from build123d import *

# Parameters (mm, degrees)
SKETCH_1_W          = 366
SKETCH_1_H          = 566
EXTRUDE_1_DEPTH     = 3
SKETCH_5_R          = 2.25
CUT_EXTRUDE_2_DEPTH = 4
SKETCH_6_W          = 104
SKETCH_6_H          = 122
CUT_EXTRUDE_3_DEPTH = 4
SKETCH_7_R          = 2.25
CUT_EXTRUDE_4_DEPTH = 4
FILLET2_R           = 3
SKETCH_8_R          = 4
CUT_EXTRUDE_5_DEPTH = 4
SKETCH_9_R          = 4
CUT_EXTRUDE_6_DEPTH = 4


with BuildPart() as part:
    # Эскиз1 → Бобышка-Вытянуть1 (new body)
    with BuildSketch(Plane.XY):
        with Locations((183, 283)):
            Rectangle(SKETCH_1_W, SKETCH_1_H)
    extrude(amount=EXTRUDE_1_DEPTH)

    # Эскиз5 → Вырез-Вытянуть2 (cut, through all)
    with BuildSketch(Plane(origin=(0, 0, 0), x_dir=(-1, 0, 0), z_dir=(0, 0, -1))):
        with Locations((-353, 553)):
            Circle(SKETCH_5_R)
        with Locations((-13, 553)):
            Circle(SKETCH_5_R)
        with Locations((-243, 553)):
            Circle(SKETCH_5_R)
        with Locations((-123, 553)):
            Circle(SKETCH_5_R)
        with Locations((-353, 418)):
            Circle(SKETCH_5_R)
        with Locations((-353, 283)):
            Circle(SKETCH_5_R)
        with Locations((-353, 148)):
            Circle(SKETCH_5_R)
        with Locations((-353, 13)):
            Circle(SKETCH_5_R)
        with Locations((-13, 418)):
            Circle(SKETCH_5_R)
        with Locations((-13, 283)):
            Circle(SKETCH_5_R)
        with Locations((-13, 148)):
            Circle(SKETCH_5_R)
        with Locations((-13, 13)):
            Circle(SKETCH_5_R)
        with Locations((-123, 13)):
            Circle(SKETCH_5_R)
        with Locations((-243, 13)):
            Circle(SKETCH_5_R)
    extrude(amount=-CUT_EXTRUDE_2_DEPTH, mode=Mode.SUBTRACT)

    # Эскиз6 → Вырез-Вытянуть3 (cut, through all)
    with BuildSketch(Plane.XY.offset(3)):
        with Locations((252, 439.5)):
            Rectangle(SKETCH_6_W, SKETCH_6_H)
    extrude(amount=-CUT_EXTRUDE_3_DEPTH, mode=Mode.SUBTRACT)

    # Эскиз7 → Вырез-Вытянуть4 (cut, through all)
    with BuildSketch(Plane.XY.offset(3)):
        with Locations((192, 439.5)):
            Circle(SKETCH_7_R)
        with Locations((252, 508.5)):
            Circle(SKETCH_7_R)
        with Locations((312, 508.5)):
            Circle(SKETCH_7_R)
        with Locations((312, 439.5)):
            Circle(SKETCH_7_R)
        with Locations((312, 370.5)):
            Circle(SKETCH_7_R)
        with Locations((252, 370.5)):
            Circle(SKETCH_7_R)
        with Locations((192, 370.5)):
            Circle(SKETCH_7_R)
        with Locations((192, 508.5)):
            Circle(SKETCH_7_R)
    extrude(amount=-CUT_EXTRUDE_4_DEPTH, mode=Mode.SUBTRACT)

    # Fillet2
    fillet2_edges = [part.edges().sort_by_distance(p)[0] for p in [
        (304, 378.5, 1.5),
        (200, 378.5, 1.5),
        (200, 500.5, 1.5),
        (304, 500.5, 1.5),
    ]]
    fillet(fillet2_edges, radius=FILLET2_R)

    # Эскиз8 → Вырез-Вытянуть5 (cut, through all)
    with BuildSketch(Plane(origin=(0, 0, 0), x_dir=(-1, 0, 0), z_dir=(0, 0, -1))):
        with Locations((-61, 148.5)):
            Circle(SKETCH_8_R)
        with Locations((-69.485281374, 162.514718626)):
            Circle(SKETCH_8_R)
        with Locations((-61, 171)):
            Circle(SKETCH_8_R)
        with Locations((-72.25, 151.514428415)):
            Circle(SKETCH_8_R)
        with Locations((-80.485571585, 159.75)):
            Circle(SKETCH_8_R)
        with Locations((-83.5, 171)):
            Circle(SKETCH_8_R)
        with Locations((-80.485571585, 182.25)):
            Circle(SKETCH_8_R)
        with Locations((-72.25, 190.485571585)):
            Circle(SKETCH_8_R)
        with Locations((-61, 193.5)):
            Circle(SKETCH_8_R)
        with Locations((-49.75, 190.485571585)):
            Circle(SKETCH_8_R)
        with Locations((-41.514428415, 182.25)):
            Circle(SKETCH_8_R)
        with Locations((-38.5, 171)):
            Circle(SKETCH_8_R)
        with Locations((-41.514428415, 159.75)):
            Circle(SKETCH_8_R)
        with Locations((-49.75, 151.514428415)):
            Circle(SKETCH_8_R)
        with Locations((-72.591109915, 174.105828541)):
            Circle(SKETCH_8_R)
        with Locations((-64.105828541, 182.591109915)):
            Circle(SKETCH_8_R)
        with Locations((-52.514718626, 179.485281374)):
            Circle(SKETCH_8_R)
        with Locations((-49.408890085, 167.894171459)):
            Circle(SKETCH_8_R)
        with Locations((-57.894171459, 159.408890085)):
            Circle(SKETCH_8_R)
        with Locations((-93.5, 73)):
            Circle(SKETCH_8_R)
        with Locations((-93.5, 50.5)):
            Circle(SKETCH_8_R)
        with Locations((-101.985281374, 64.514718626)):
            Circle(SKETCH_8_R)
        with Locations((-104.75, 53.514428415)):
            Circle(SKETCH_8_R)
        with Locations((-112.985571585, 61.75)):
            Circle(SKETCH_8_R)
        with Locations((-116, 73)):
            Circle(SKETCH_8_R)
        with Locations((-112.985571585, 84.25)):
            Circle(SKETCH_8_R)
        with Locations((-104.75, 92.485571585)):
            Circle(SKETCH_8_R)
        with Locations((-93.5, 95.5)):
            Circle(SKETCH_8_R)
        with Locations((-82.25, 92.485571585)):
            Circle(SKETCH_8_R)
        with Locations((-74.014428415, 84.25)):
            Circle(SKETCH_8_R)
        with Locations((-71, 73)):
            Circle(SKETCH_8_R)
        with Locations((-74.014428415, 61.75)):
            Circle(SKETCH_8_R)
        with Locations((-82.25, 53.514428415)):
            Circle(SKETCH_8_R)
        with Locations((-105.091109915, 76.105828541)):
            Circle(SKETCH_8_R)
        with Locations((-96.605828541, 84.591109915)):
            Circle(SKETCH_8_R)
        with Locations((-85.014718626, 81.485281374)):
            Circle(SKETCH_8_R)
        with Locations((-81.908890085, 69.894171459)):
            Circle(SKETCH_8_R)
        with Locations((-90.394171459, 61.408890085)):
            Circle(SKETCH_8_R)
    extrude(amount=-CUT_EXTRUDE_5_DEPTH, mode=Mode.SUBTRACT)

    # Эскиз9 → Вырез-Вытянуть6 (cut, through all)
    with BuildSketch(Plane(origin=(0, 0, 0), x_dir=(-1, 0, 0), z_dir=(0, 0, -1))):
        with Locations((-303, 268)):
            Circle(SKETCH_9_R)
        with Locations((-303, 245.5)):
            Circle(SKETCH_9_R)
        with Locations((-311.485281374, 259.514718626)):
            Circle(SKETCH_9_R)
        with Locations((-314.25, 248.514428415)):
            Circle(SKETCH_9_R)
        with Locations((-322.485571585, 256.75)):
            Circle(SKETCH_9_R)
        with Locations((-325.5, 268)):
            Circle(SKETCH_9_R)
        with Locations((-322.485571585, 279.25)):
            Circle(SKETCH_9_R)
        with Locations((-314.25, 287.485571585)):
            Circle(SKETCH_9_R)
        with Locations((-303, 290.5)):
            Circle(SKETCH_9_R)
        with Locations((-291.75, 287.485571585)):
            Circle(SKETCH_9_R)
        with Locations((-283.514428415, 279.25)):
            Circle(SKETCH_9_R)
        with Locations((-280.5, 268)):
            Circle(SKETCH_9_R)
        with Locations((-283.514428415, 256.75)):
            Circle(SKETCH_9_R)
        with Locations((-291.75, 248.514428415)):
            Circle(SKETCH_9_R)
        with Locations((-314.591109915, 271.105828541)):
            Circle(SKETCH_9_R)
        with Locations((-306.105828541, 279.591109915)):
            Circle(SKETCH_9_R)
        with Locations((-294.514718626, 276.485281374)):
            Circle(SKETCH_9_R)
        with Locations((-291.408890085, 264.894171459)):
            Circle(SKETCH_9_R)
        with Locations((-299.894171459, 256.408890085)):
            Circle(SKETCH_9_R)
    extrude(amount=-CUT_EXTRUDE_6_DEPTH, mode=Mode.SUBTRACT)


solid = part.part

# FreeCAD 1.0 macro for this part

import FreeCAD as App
import Part
import Sketcher

V = App.Vector


def edges_at(feature, points):
    """Names of the edges that pass closest to the given points."""
    edges = feature.Shape.Edges
    near = lambda p: min(range(len(edges)), key=lambda i: edges[i].distToShape(Part.Vertex(*p))[0])
    return sorted({f"Edge{near(p) + 1}" for p in points})

doc = App.newDocument("Part")
params = doc.addObject("Spreadsheet::Sheet", "Params")
for row, (alias, value) in enumerate([
    ("sketch1_width", "366 mm"),
    ("sketch1_height", "566 mm"),
    ("pad1_length", "3 mm"),
    ("sketch2_diameter", "4.5 mm"),
    ("sketch3_width", "104 mm"),
    ("sketch3_height", "122 mm"),
    ("sketch4_diameter", "4.5 mm"),
    ("fillet_radius", "3 mm"),
    ("sketch5_diameter", "8 mm"),
    ("sketch6_diameter", "8 mm"),
], start=1):
    params.set(f"A{row}", alias)
    params.set(f"B{row}", "=" + value)
    params.setAlias(f"B{row}", alias)

body = doc.addObject("PartDesign::Body", "Body")

sketch1 = doc.addObject("Sketcher::SketchObject", "Sketch")
body.addObject(sketch1)
sketch1.AttachmentSupport = (doc.XY_Plane, [""])
sketch1.MapMode = "FlatFace"
sketch1.addGeometry(Part.LineSegment(V(0, 566, 0), V(0, 0, 0)), False)
sketch1.addGeometry(Part.LineSegment(V(0, 0, 0), V(366, 0, 0)), False)
sketch1.addGeometry(Part.LineSegment(V(366, 0, 0), V(366, 566, 0)), False)
sketch1.addGeometry(Part.LineSegment(V(366, 566, 0), V(0, 566, 0)), False)
sketch1.addConstraint(Sketcher.Constraint("Coincident", 0, 2, 1, 1))
sketch1.addConstraint(Sketcher.Constraint("Coincident", 1, 2, 2, 1))
sketch1.addConstraint(Sketcher.Constraint("Coincident", 2, 2, 3, 1))
sketch1.addConstraint(Sketcher.Constraint("Coincident", 3, 2, 0, 1))
sketch1.addConstraint(Sketcher.Constraint("Vertical", 0))
sketch1.addConstraint(Sketcher.Constraint("Horizontal", 1))
sketch1.addConstraint(Sketcher.Constraint("Vertical", 2))
sketch1.addConstraint(Sketcher.Constraint("Horizontal", 3))
sketch1.addConstraint(Sketcher.Constraint("Coincident", 0, 2, -1, 1))
sketch1.addConstraint(Sketcher.Constraint("DistanceX", 1, 1, 1, 2, 366.0))
sketch1.addConstraint(Sketcher.Constraint("DistanceY", 0, 2, 0, 1, 566.0))
sketch1.setExpression("Constraints[9]", "Params.sketch1_width")
sketch1.setExpression("Constraints[10]", "Params.sketch1_height")
pad1 = doc.addObject("PartDesign::Pad", "Pad")
body.addObject(pad1)
pad1.Profile = sketch1
pad1.setExpression("Length", "Params.pad1_length")

sketch2 = doc.addObject("Sketcher::SketchObject", "Sketch001")
body.addObject(sketch2)
sketch2.AttachmentSupport = (doc.XY_Plane, [""])
sketch2.MapMode = "FlatFace"
sketch2.addGeometry(Part.Circle(V(353, 553, 0), V(0, 0, 1), 2.25), False)
sketch2.addGeometry(Part.Circle(V(13, 553, 0), V(0, 0, 1), 2.25), False)
sketch2.addGeometry(Part.Circle(V(243, 553, 0), V(0, 0, 1), 2.25), False)
sketch2.addGeometry(Part.Circle(V(123, 553, 0), V(0, 0, 1), 2.25), False)
sketch2.addGeometry(Part.Circle(V(353, 418, 0), V(0, 0, 1), 2.25), False)
sketch2.addGeometry(Part.Circle(V(353, 283, 0), V(0, 0, 1), 2.25), False)
sketch2.addGeometry(Part.Circle(V(353, 148, 0), V(0, 0, 1), 2.25), False)
sketch2.addGeometry(Part.Circle(V(353, 13, 0), V(0, 0, 1), 2.25), False)
sketch2.addGeometry(Part.Circle(V(13, 418, 0), V(0, 0, 1), 2.25), False)
sketch2.addGeometry(Part.Circle(V(13, 283, 0), V(0, 0, 1), 2.25), False)
sketch2.addGeometry(Part.Circle(V(13, 148, 0), V(0, 0, 1), 2.25), False)
sketch2.addGeometry(Part.Circle(V(13, 13, 0), V(0, 0, 1), 2.25), False)
sketch2.addGeometry(Part.Circle(V(123, 13, 0), V(0, 0, 1), 2.25), False)
sketch2.addGeometry(Part.Circle(V(243, 13, 0), V(0, 0, 1), 2.25), False)
sketch2.addConstraint(Sketcher.Constraint("Equal", 0, 1))
sketch2.addConstraint(Sketcher.Constraint("Equal", 1, 2))
sketch2.addConstraint(Sketcher.Constraint("Equal", 2, 3))
sketch2.addConstraint(Sketcher.Constraint("Equal", 3, 4))
sketch2.addConstraint(Sketcher.Constraint("Equal", 4, 5))
sketch2.addConstraint(Sketcher.Constraint("Equal", 5, 6))
sketch2.addConstraint(Sketcher.Constraint("Equal", 6, 7))
sketch2.addConstraint(Sketcher.Constraint("Equal", 7, 8))
sketch2.addConstraint(Sketcher.Constraint("Equal", 8, 9))
sketch2.addConstraint(Sketcher.Constraint("Equal", 9, 10))
sketch2.addConstraint(Sketcher.Constraint("Equal", 10, 11))
sketch2.addConstraint(Sketcher.Constraint("Equal", 11, 12))
sketch2.addConstraint(Sketcher.Constraint("Equal", 12, 13))
sketch2.addConstraint(Sketcher.Constraint("Horizontal", 0, 3, 1, 3))
sketch2.addConstraint(Sketcher.Constraint("Horizontal", 1, 3, 2, 3))
sketch2.addConstraint(Sketcher.Constraint("Horizontal", 2, 3, 3, 3))
sketch2.addConstraint(Sketcher.Constraint("Horizontal", 4, 3, 8, 3))
sketch2.addConstraint(Sketcher.Constraint("Horizontal", 5, 3, 9, 3))
sketch2.addConstraint(Sketcher.Constraint("Horizontal", 6, 3, 10, 3))
sketch2.addConstraint(Sketcher.Constraint("Horizontal", 7, 3, 11, 3))
sketch2.addConstraint(Sketcher.Constraint("Horizontal", 11, 3, 12, 3))
sketch2.addConstraint(Sketcher.Constraint("Horizontal", 12, 3, 13, 3))
sketch2.addConstraint(Sketcher.Constraint("Vertical", 0, 3, 4, 3))
sketch2.addConstraint(Sketcher.Constraint("Vertical", 4, 3, 5, 3))
sketch2.addConstraint(Sketcher.Constraint("Vertical", 5, 3, 6, 3))
sketch2.addConstraint(Sketcher.Constraint("Vertical", 6, 3, 7, 3))
sketch2.addConstraint(Sketcher.Constraint("Vertical", 1, 3, 8, 3))
sketch2.addConstraint(Sketcher.Constraint("Vertical", 8, 3, 9, 3))
sketch2.addConstraint(Sketcher.Constraint("Vertical", 9, 3, 10, 3))
sketch2.addConstraint(Sketcher.Constraint("Vertical", 10, 3, 11, 3))
sketch2.addConstraint(Sketcher.Constraint("Vertical", 3, 3, 12, 3))
sketch2.addConstraint(Sketcher.Constraint("Vertical", 2, 3, 13, 3))
sketch2.addConstraint(Sketcher.Constraint("Diameter", 0, 4.5))
sketch2.addConstraint(Sketcher.Constraint("DistanceX", -1, 1, 0, 3, 353.0))
sketch2.addConstraint(Sketcher.Constraint("DistanceY", -1, 1, 0, 3, 553.0))
sketch2.addConstraint(Sketcher.Constraint("DistanceX", -1, 1, 1, 3, 13.0))
sketch2.addConstraint(Sketcher.Constraint("DistanceX", -1, 1, 2, 3, 243.0))
sketch2.addConstraint(Sketcher.Constraint("DistanceX", -1, 1, 3, 3, 123.0))
sketch2.addConstraint(Sketcher.Constraint("DistanceY", -1, 1, 4, 3, 418.0))
sketch2.addConstraint(Sketcher.Constraint("DistanceY", -1, 1, 5, 3, 283.0))
sketch2.addConstraint(Sketcher.Constraint("DistanceY", -1, 1, 6, 3, 148.0))
sketch2.addConstraint(Sketcher.Constraint("DistanceY", -1, 1, 7, 3, 13.0))
sketch2.setExpression("Constraints[32]", "Params.sketch2_diameter")
pocket1 = doc.addObject("PartDesign::Pocket", "Pocket")
body.addObject(pocket1)
pocket1.Profile = sketch2
pocket1.Type = "ThroughAll"
pocket1.Reversed = True

sketch3 = doc.addObject("Sketcher::SketchObject", "Sketch002")
body.addObject(sketch3)
sketch3.AttachmentSupport = (doc.XY_Plane, [""])
sketch3.MapMode = "FlatFace"
sketch3.AttachmentOffset = App.Placement(V(0, 0, 3), App.Rotation())
sketch3.addGeometry(Part.LineSegment(V(200, 500.5, 0), V(200, 378.5, 0)), False)
sketch3.addGeometry(Part.LineSegment(V(200, 378.5, 0), V(304, 378.5, 0)), False)
sketch3.addGeometry(Part.LineSegment(V(304, 378.5, 0), V(304, 500.5, 0)), False)
sketch3.addGeometry(Part.LineSegment(V(304, 500.5, 0), V(200, 500.5, 0)), False)
sketch3.addConstraint(Sketcher.Constraint("Coincident", 0, 2, 1, 1))
sketch3.addConstraint(Sketcher.Constraint("Coincident", 1, 2, 2, 1))
sketch3.addConstraint(Sketcher.Constraint("Coincident", 2, 2, 3, 1))
sketch3.addConstraint(Sketcher.Constraint("Coincident", 3, 2, 0, 1))
sketch3.addConstraint(Sketcher.Constraint("Vertical", 0))
sketch3.addConstraint(Sketcher.Constraint("Horizontal", 1))
sketch3.addConstraint(Sketcher.Constraint("Vertical", 2))
sketch3.addConstraint(Sketcher.Constraint("Horizontal", 3))
sketch3.addConstraint(Sketcher.Constraint("DistanceX", 1, 1, 1, 2, 104.0))
sketch3.addConstraint(Sketcher.Constraint("DistanceY", 0, 2, 0, 1, 122.0))
sketch3.addConstraint(Sketcher.Constraint("DistanceX", -1, 1, 0, 2, 200.0))
sketch3.addConstraint(Sketcher.Constraint("DistanceY", -1, 1, 0, 2, 378.5))
sketch3.setExpression("Constraints[8]", "Params.sketch3_width")
sketch3.setExpression("Constraints[9]", "Params.sketch3_height")
pocket2 = doc.addObject("PartDesign::Pocket", "Pocket001")
body.addObject(pocket2)
pocket2.Profile = sketch3
pocket2.Type = "ThroughAll"

sketch4 = doc.addObject("Sketcher::SketchObject", "Sketch003")
body.addObject(sketch4)
sketch4.AttachmentSupport = (doc.XY_Plane, [""])
sketch4.MapMode = "FlatFace"
sketch4.AttachmentOffset = App.Placement(V(0, 0, 3), App.Rotation())
sketch4.addGeometry(Part.Circle(V(192, 439.5, 0), V(0, 0, 1), 2.25), False)
sketch4.addGeometry(Part.Circle(V(252, 508.5, 0), V(0, 0, 1), 2.25), False)
sketch4.addGeometry(Part.Circle(V(312, 508.5, 0), V(0, 0, 1), 2.25), False)
sketch4.addGeometry(Part.Circle(V(312, 439.5, 0), V(0, 0, 1), 2.25), False)
sketch4.addGeometry(Part.Circle(V(312, 370.5, 0), V(0, 0, 1), 2.25), False)
sketch4.addGeometry(Part.Circle(V(252, 370.5, 0), V(0, 0, 1), 2.25), False)
sketch4.addGeometry(Part.Circle(V(192, 370.5, 0), V(0, 0, 1), 2.25), False)
sketch4.addGeometry(Part.Circle(V(192, 508.5, 0), V(0, 0, 1), 2.25), False)
sketch4.addConstraint(Sketcher.Constraint("Equal", 0, 1))
sketch4.addConstraint(Sketcher.Constraint("Equal", 1, 2))
sketch4.addConstraint(Sketcher.Constraint("Equal", 2, 3))
sketch4.addConstraint(Sketcher.Constraint("Equal", 3, 4))
sketch4.addConstraint(Sketcher.Constraint("Equal", 4, 5))
sketch4.addConstraint(Sketcher.Constraint("Equal", 5, 6))
sketch4.addConstraint(Sketcher.Constraint("Equal", 6, 7))
sketch4.addConstraint(Sketcher.Constraint("Horizontal", 1, 3, 2, 3))
sketch4.addConstraint(Sketcher.Constraint("Horizontal", 0, 3, 3, 3))
sketch4.addConstraint(Sketcher.Constraint("Horizontal", 4, 3, 5, 3))
sketch4.addConstraint(Sketcher.Constraint("Horizontal", 5, 3, 6, 3))
sketch4.addConstraint(Sketcher.Constraint("Horizontal", 2, 3, 7, 3))
sketch4.addConstraint(Sketcher.Constraint("Vertical", 2, 3, 3, 3))
sketch4.addConstraint(Sketcher.Constraint("Vertical", 3, 3, 4, 3))
sketch4.addConstraint(Sketcher.Constraint("Vertical", 1, 3, 5, 3))
sketch4.addConstraint(Sketcher.Constraint("Vertical", 0, 3, 6, 3))
sketch4.addConstraint(Sketcher.Constraint("Vertical", 6, 3, 7, 3))
sketch4.addConstraint(Sketcher.Constraint("Diameter", 0, 4.5))
sketch4.addConstraint(Sketcher.Constraint("DistanceX", -1, 1, 0, 3, 192.0))
sketch4.addConstraint(Sketcher.Constraint("DistanceX", -1, 1, 1, 3, 252.0))
sketch4.addConstraint(Sketcher.Constraint("DistanceX", -1, 1, 2, 3, 312.0))
sketch4.addConstraint(Sketcher.Constraint("DistanceY", 0, 3, 1, 3, 69.0))
sketch4.addConstraint(Sketcher.Constraint("DistanceY", 4, 3, 3, 3, 69.0))
sketch4.addConstraint(Sketcher.Constraint("DistanceY", -1, 1, 0, 3, 439.5))
sketch4.setExpression("Constraints[17]", "Params.sketch4_diameter")
pocket3 = doc.addObject("PartDesign::Pocket", "Pocket002")
body.addObject(pocket3)
pocket3.Profile = sketch4
pocket3.Type = "ThroughAll"
doc.recompute()

fillet = doc.addObject("PartDesign::Fillet", "Fillet")
body.addObject(fillet)
fillet.Base = (pocket3, edges_at(pocket3, [
    (304, 378.5, 1.5),
    (200, 378.5, 1.5),
    (200, 500.5, 1.5),
    (304, 500.5, 1.5),
]))
fillet.setExpression("Radius", "Params.fillet_radius")

sketch5 = doc.addObject("Sketcher::SketchObject", "Sketch004")
body.addObject(sketch5)
sketch5.AttachmentSupport = (doc.XY_Plane, [""])
sketch5.MapMode = "FlatFace"
sketch5.addGeometry(Part.Circle(V(61, 148.5, 0), V(0, 0, 1), 4), False)
sketch5.addGeometry(Part.Circle(V(69.485281, 162.514719, 0), V(0, 0, 1), 4), False)
sketch5.addGeometry(Part.Circle(V(61, 171, 0), V(0, 0, 1), 4), False)
sketch5.addGeometry(Part.Circle(V(72.25, 151.514428, 0), V(0, 0, 1), 4), False)
sketch5.addGeometry(Part.Circle(V(80.485572, 159.75, 0), V(0, 0, 1), 4), False)
sketch5.addGeometry(Part.Circle(V(83.5, 171, 0), V(0, 0, 1), 4), False)
sketch5.addGeometry(Part.Circle(V(80.485572, 182.25, 0), V(0, 0, 1), 4), False)
sketch5.addGeometry(Part.Circle(V(72.25, 190.485572, 0), V(0, 0, 1), 4), False)
sketch5.addGeometry(Part.Circle(V(61, 193.5, 0), V(0, 0, 1), 4), False)
sketch5.addGeometry(Part.Circle(V(49.75, 190.485572, 0), V(0, 0, 1), 4), False)
sketch5.addGeometry(Part.Circle(V(41.514428, 182.25, 0), V(0, 0, 1), 4), False)
sketch5.addGeometry(Part.Circle(V(38.5, 171, 0), V(0, 0, 1), 4), False)
sketch5.addGeometry(Part.Circle(V(41.514428, 159.75, 0), V(0, 0, 1), 4), False)
sketch5.addGeometry(Part.Circle(V(49.75, 151.514428, 0), V(0, 0, 1), 4), False)
sketch5.addGeometry(Part.Circle(V(72.59111, 174.105829, 0), V(0, 0, 1), 4), False)
sketch5.addGeometry(Part.Circle(V(64.105829, 182.59111, 0), V(0, 0, 1), 4), False)
sketch5.addGeometry(Part.Circle(V(52.514719, 179.485281, 0), V(0, 0, 1), 4), False)
sketch5.addGeometry(Part.Circle(V(49.40889, 167.894171, 0), V(0, 0, 1), 4), False)
sketch5.addGeometry(Part.Circle(V(57.894171, 159.40889, 0), V(0, 0, 1), 4), False)
sketch5.addGeometry(Part.Circle(V(93.5, 73, 0), V(0, 0, 1), 4), False)
sketch5.addGeometry(Part.Circle(V(93.5, 50.5, 0), V(0, 0, 1), 4), False)
sketch5.addGeometry(Part.Circle(V(101.985281, 64.514719, 0), V(0, 0, 1), 4), False)
sketch5.addGeometry(Part.Circle(V(104.75, 53.514428, 0), V(0, 0, 1), 4), False)
sketch5.addGeometry(Part.Circle(V(112.985572, 61.75, 0), V(0, 0, 1), 4), False)
sketch5.addGeometry(Part.Circle(V(116, 73, 0), V(0, 0, 1), 4), False)
sketch5.addGeometry(Part.Circle(V(112.985572, 84.25, 0), V(0, 0, 1), 4), False)
sketch5.addGeometry(Part.Circle(V(104.75, 92.485572, 0), V(0, 0, 1), 4), False)
sketch5.addGeometry(Part.Circle(V(93.5, 95.5, 0), V(0, 0, 1), 4), False)
sketch5.addGeometry(Part.Circle(V(82.25, 92.485572, 0), V(0, 0, 1), 4), False)
sketch5.addGeometry(Part.Circle(V(74.014428, 84.25, 0), V(0, 0, 1), 4), False)
sketch5.addGeometry(Part.Circle(V(71, 73, 0), V(0, 0, 1), 4), False)
sketch5.addGeometry(Part.Circle(V(74.014428, 61.75, 0), V(0, 0, 1), 4), False)
sketch5.addGeometry(Part.Circle(V(82.25, 53.514428, 0), V(0, 0, 1), 4), False)
sketch5.addGeometry(Part.Circle(V(105.09111, 76.105829, 0), V(0, 0, 1), 4), False)
sketch5.addGeometry(Part.Circle(V(96.605829, 84.59111, 0), V(0, 0, 1), 4), False)
sketch5.addGeometry(Part.Circle(V(85.014719, 81.485281, 0), V(0, 0, 1), 4), False)
sketch5.addGeometry(Part.Circle(V(81.90889, 69.894171, 0), V(0, 0, 1), 4), False)
sketch5.addGeometry(Part.Circle(V(90.394171, 61.40889, 0), V(0, 0, 1), 4), False)
sketch5.addConstraint(Sketcher.Constraint("Equal", 0, 1))
sketch5.addConstraint(Sketcher.Constraint("Equal", 1, 2))
sketch5.addConstraint(Sketcher.Constraint("Equal", 2, 3))
sketch5.addConstraint(Sketcher.Constraint("Equal", 3, 4))
sketch5.addConstraint(Sketcher.Constraint("Equal", 4, 5))
sketch5.addConstraint(Sketcher.Constraint("Equal", 5, 6))
sketch5.addConstraint(Sketcher.Constraint("Equal", 6, 7))
sketch5.addConstraint(Sketcher.Constraint("Equal", 7, 8))
sketch5.addConstraint(Sketcher.Constraint("Equal", 8, 9))
sketch5.addConstraint(Sketcher.Constraint("Equal", 9, 10))
sketch5.addConstraint(Sketcher.Constraint("Equal", 10, 11))
sketch5.addConstraint(Sketcher.Constraint("Equal", 11, 12))
sketch5.addConstraint(Sketcher.Constraint("Equal", 12, 13))
sketch5.addConstraint(Sketcher.Constraint("Equal", 13, 14))
sketch5.addConstraint(Sketcher.Constraint("Equal", 14, 15))
sketch5.addConstraint(Sketcher.Constraint("Equal", 15, 16))
sketch5.addConstraint(Sketcher.Constraint("Equal", 16, 17))
sketch5.addConstraint(Sketcher.Constraint("Equal", 17, 18))
sketch5.addConstraint(Sketcher.Constraint("Equal", 18, 19))
sketch5.addConstraint(Sketcher.Constraint("Equal", 19, 20))
sketch5.addConstraint(Sketcher.Constraint("Equal", 20, 21))
sketch5.addConstraint(Sketcher.Constraint("Equal", 21, 22))
sketch5.addConstraint(Sketcher.Constraint("Equal", 22, 23))
sketch5.addConstraint(Sketcher.Constraint("Equal", 23, 24))
sketch5.addConstraint(Sketcher.Constraint("Equal", 24, 25))
sketch5.addConstraint(Sketcher.Constraint("Equal", 25, 26))
sketch5.addConstraint(Sketcher.Constraint("Equal", 26, 27))
sketch5.addConstraint(Sketcher.Constraint("Equal", 27, 28))
sketch5.addConstraint(Sketcher.Constraint("Equal", 28, 29))
sketch5.addConstraint(Sketcher.Constraint("Equal", 29, 30))
sketch5.addConstraint(Sketcher.Constraint("Equal", 30, 31))
sketch5.addConstraint(Sketcher.Constraint("Equal", 31, 32))
sketch5.addConstraint(Sketcher.Constraint("Equal", 32, 33))
sketch5.addConstraint(Sketcher.Constraint("Equal", 33, 34))
sketch5.addConstraint(Sketcher.Constraint("Equal", 34, 35))
sketch5.addConstraint(Sketcher.Constraint("Equal", 35, 36))
sketch5.addConstraint(Sketcher.Constraint("Equal", 36, 37))
sketch5.addConstraint(Sketcher.Constraint("Horizontal", 2, 3, 5, 3))
sketch5.addConstraint(Sketcher.Constraint("Horizontal", 7, 3, 9, 3))
sketch5.addConstraint(Sketcher.Constraint("Horizontal", 6, 3, 10, 3))
sketch5.addConstraint(Sketcher.Constraint("Horizontal", 5, 3, 11, 3))
sketch5.addConstraint(Sketcher.Constraint("Horizontal", 4, 3, 12, 3))
sketch5.addConstraint(Sketcher.Constraint("Horizontal", 3, 3, 13, 3))
sketch5.addConstraint(Sketcher.Constraint("Horizontal", 19, 3, 24, 3))
sketch5.addConstraint(Sketcher.Constraint("Horizontal", 26, 3, 28, 3))
sketch5.addConstraint(Sketcher.Constraint("Horizontal", 25, 3, 29, 3))
sketch5.addConstraint(Sketcher.Constraint("Horizontal", 24, 3, 30, 3))
sketch5.addConstraint(Sketcher.Constraint("Horizontal", 23, 3, 31, 3))
sketch5.addConstraint(Sketcher.Constraint("Horizontal", 22, 3, 32, 3))
sketch5.addConstraint(Sketcher.Constraint("Vertical", 0, 3, 2, 3))
sketch5.addConstraint(Sketcher.Constraint("Vertical", 4, 3, 6, 3))
sketch5.addConstraint(Sketcher.Constraint("Vertical", 3, 3, 7, 3))
sketch5.addConstraint(Sketcher.Constraint("Vertical", 2, 3, 8, 3))
sketch5.addConstraint(Sketcher.Constraint("Vertical", 10, 3, 12, 3))
sketch5.addConstraint(Sketcher.Constraint("Vertical", 9, 3, 13, 3))
sketch5.addConstraint(Sketcher.Constraint("Vertical", 19, 3, 20, 3))
sketch5.addConstraint(Sketcher.Constraint("Vertical", 23, 3, 25, 3))
sketch5.addConstraint(Sketcher.Constraint("Vertical", 22, 3, 26, 3))
sketch5.addConstraint(Sketcher.Constraint("Vertical", 20, 3, 27, 3))
sketch5.addConstraint(Sketcher.Constraint("Vertical", 29, 3, 31, 3))
sketch5.addConstraint(Sketcher.Constraint("Vertical", 28, 3, 32, 3))
sketch5.addConstraint(Sketcher.Constraint("Diameter", 0, 8.0))
sketch5.addConstraint(Sketcher.Constraint("DistanceX", -1, 1, 0, 3, 61.0))
sketch5.addConstraint(Sketcher.Constraint("DistanceY", -1, 1, 2, 3, 171.0))
sketch5.addConstraint(Sketcher.Constraint("DistanceY", -1, 1, 19, 3, 73.0))
sketch5.addConstraint(Sketcher.Constraint("DistanceX", -1, 1, 24, 3, 116.0))
sketch5.addConstraint(Sketcher.Constraint("DistanceX", -1, 1, 30, 3, 71.0))
sketch5.addConstraint(Sketcher.Constraint("DistanceY", 20, 3, 0, 3, 98.0))
sketch5.addConstraint(Sketcher.Constraint("DistanceY", 22, 3, 3, 3, 98.0))
sketch5.addConstraint(Sketcher.Constraint("DistanceY", -1, 1, 0, 3, 148.5))
sketch5.addConstraint(Sketcher.Constraint("DistanceX", -1, 1, 5, 3, 83.5))
sketch5.addConstraint(Sketcher.Constraint("DistanceY", -1, 1, 8, 3, 193.5))
sketch5.addConstraint(Sketcher.Constraint("DistanceX", -1, 1, 11, 3, 38.5))
sketch5.addConstraint(Sketcher.Constraint("DistanceX", -1, 1, 19, 3, 93.5))
sketch5.addConstraint(Sketcher.Constraint("DistanceY", -1, 1, 27, 3, 95.5))
sketch5.addConstraint(Sketcher.Constraint("DistanceY", 4, 3, 6, 3, 22.5))
sketch5.addConstraint(Sketcher.Constraint("DistanceX", 9, 3, 7, 3, 22.5))
sketch5.addConstraint(Sketcher.Constraint("DistanceX", 3, 3, 22, 3, 32.5))
sketch5.addConstraint(Sketcher.Constraint("DistanceY", 23, 3, 25, 3, 22.5))
sketch5.addConstraint(Sketcher.Constraint("DistanceX", 28, 3, 26, 3, 22.5))
sketch5.addConstraint(Sketcher.Constraint("DistanceX", -1, 1, 3, 3, 72.25))
sketch5.addConstraint(Sketcher.Constraint("DistanceY", -1, 1, 4, 3, 159.75))
sketch5.addConstraint(Sketcher.Constraint("DistanceY", -1, 1, 23, 3, 61.75))
sketch5.addConstraint(Sketcher.Constraint("DistanceX", -1, 1, 1, 3, 69.485281))
sketch5.addConstraint(Sketcher.Constraint("DistanceY", -1, 1, 1, 3, 162.514719))
sketch5.addConstraint(Sketcher.Constraint("DistanceY", -1, 1, 3, 3, 151.514428))
sketch5.addConstraint(Sketcher.Constraint("DistanceX", -1, 1, 4, 3, 80.485572))
sketch5.addConstraint(Sketcher.Constraint("DistanceY", -1, 1, 7, 3, 190.485572))
sketch5.addConstraint(Sketcher.Constraint("DistanceX", -1, 1, 10, 3, 41.514428))
sketch5.addConstraint(Sketcher.Constraint("DistanceX", -1, 1, 14, 3, 72.59111))
sketch5.addConstraint(Sketcher.Constraint("DistanceY", -1, 1, 14, 3, 174.105829))
sketch5.addConstraint(Sketcher.Constraint("DistanceX", -1, 1, 15, 3, 64.105829))
sketch5.addConstraint(Sketcher.Constraint("DistanceY", -1, 1, 15, 3, 182.59111))
sketch5.addConstraint(Sketcher.Constraint("DistanceX", -1, 1, 16, 3, 52.514719))
sketch5.addConstraint(Sketcher.Constraint("DistanceY", -1, 1, 16, 3, 179.485281))
sketch5.addConstraint(Sketcher.Constraint("DistanceX", -1, 1, 17, 3, 49.40889))
sketch5.addConstraint(Sketcher.Constraint("DistanceY", -1, 1, 17, 3, 167.894171))
sketch5.addConstraint(Sketcher.Constraint("DistanceX", -1, 1, 18, 3, 57.894171))
sketch5.addConstraint(Sketcher.Constraint("DistanceY", -1, 1, 18, 3, 159.40889))
sketch5.addConstraint(Sketcher.Constraint("DistanceX", -1, 1, 21, 3, 101.985281))
sketch5.addConstraint(Sketcher.Constraint("DistanceY", -1, 1, 21, 3, 64.514719))
sketch5.addConstraint(Sketcher.Constraint("DistanceX", -1, 1, 23, 3, 112.985572))
sketch5.addConstraint(Sketcher.Constraint("DistanceY", -1, 1, 26, 3, 92.485572))
sketch5.addConstraint(Sketcher.Constraint("DistanceX", -1, 1, 29, 3, 74.014428))
sketch5.addConstraint(Sketcher.Constraint("DistanceX", -1, 1, 33, 3, 105.09111))
sketch5.addConstraint(Sketcher.Constraint("DistanceY", -1, 1, 33, 3, 76.105829))
sketch5.addConstraint(Sketcher.Constraint("DistanceX", -1, 1, 34, 3, 96.605829))
sketch5.addConstraint(Sketcher.Constraint("DistanceY", -1, 1, 34, 3, 84.59111))
sketch5.addConstraint(Sketcher.Constraint("DistanceX", -1, 1, 35, 3, 85.014719))
sketch5.addConstraint(Sketcher.Constraint("DistanceY", -1, 1, 35, 3, 81.485281))
sketch5.addConstraint(Sketcher.Constraint("DistanceX", -1, 1, 36, 3, 81.90889))
sketch5.addConstraint(Sketcher.Constraint("DistanceY", -1, 1, 36, 3, 69.894171))
sketch5.addConstraint(Sketcher.Constraint("DistanceX", -1, 1, 37, 3, 90.394171))
sketch5.addConstraint(Sketcher.Constraint("DistanceY", -1, 1, 37, 3, 61.40889))
sketch5.setExpression("Constraints[61]", "Params.sketch5_diameter")
pocket4 = doc.addObject("PartDesign::Pocket", "Pocket003")
body.addObject(pocket4)
pocket4.Profile = sketch5
pocket4.Type = "ThroughAll"
pocket4.Reversed = True

sketch6 = doc.addObject("Sketcher::SketchObject", "Sketch005")
body.addObject(sketch6)
sketch6.AttachmentSupport = (doc.XY_Plane, [""])
sketch6.MapMode = "FlatFace"
sketch6.addGeometry(Part.Circle(V(303, 268, 0), V(0, 0, 1), 4), False)
sketch6.addGeometry(Part.Circle(V(303, 245.5, 0), V(0, 0, 1), 4), False)
sketch6.addGeometry(Part.Circle(V(311.485281, 259.514719, 0), V(0, 0, 1), 4), False)
sketch6.addGeometry(Part.Circle(V(314.25, 248.514428, 0), V(0, 0, 1), 4), False)
sketch6.addGeometry(Part.Circle(V(322.485572, 256.75, 0), V(0, 0, 1), 4), False)
sketch6.addGeometry(Part.Circle(V(325.5, 268, 0), V(0, 0, 1), 4), False)
sketch6.addGeometry(Part.Circle(V(322.485572, 279.25, 0), V(0, 0, 1), 4), False)
sketch6.addGeometry(Part.Circle(V(314.25, 287.485572, 0), V(0, 0, 1), 4), False)
sketch6.addGeometry(Part.Circle(V(303, 290.5, 0), V(0, 0, 1), 4), False)
sketch6.addGeometry(Part.Circle(V(291.75, 287.485572, 0), V(0, 0, 1), 4), False)
sketch6.addGeometry(Part.Circle(V(283.514428, 279.25, 0), V(0, 0, 1), 4), False)
sketch6.addGeometry(Part.Circle(V(280.5, 268, 0), V(0, 0, 1), 4), False)
sketch6.addGeometry(Part.Circle(V(283.514428, 256.75, 0), V(0, 0, 1), 4), False)
sketch6.addGeometry(Part.Circle(V(291.75, 248.514428, 0), V(0, 0, 1), 4), False)
sketch6.addGeometry(Part.Circle(V(314.59111, 271.105829, 0), V(0, 0, 1), 4), False)
sketch6.addGeometry(Part.Circle(V(306.105829, 279.59111, 0), V(0, 0, 1), 4), False)
sketch6.addGeometry(Part.Circle(V(294.514719, 276.485281, 0), V(0, 0, 1), 4), False)
sketch6.addGeometry(Part.Circle(V(291.40889, 264.894171, 0), V(0, 0, 1), 4), False)
sketch6.addGeometry(Part.Circle(V(299.894171, 256.40889, 0), V(0, 0, 1), 4), False)
sketch6.addConstraint(Sketcher.Constraint("Equal", 0, 1))
sketch6.addConstraint(Sketcher.Constraint("Equal", 1, 2))
sketch6.addConstraint(Sketcher.Constraint("Equal", 2, 3))
sketch6.addConstraint(Sketcher.Constraint("Equal", 3, 4))
sketch6.addConstraint(Sketcher.Constraint("Equal", 4, 5))
sketch6.addConstraint(Sketcher.Constraint("Equal", 5, 6))
sketch6.addConstraint(Sketcher.Constraint("Equal", 6, 7))
sketch6.addConstraint(Sketcher.Constraint("Equal", 7, 8))
sketch6.addConstraint(Sketcher.Constraint("Equal", 8, 9))
sketch6.addConstraint(Sketcher.Constraint("Equal", 9, 10))
sketch6.addConstraint(Sketcher.Constraint("Equal", 10, 11))
sketch6.addConstraint(Sketcher.Constraint("Equal", 11, 12))
sketch6.addConstraint(Sketcher.Constraint("Equal", 12, 13))
sketch6.addConstraint(Sketcher.Constraint("Equal", 13, 14))
sketch6.addConstraint(Sketcher.Constraint("Equal", 14, 15))
sketch6.addConstraint(Sketcher.Constraint("Equal", 15, 16))
sketch6.addConstraint(Sketcher.Constraint("Equal", 16, 17))
sketch6.addConstraint(Sketcher.Constraint("Equal", 17, 18))
sketch6.addConstraint(Sketcher.Constraint("Horizontal", 0, 3, 5, 3))
sketch6.addConstraint(Sketcher.Constraint("Horizontal", 7, 3, 9, 3))
sketch6.addConstraint(Sketcher.Constraint("Horizontal", 6, 3, 10, 3))
sketch6.addConstraint(Sketcher.Constraint("Horizontal", 5, 3, 11, 3))
sketch6.addConstraint(Sketcher.Constraint("Horizontal", 4, 3, 12, 3))
sketch6.addConstraint(Sketcher.Constraint("Horizontal", 3, 3, 13, 3))
sketch6.addConstraint(Sketcher.Constraint("Vertical", 0, 3, 1, 3))
sketch6.addConstraint(Sketcher.Constraint("Vertical", 4, 3, 6, 3))
sketch6.addConstraint(Sketcher.Constraint("Vertical", 3, 3, 7, 3))
sketch6.addConstraint(Sketcher.Constraint("Vertical", 1, 3, 8, 3))
sketch6.addConstraint(Sketcher.Constraint("Vertical", 10, 3, 12, 3))
sketch6.addConstraint(Sketcher.Constraint("Vertical", 9, 3, 13, 3))
sketch6.addConstraint(Sketcher.Constraint("Diameter", 0, 8.0))
sketch6.addConstraint(Sketcher.Constraint("DistanceX", -1, 1, 0, 3, 303.0))
sketch6.addConstraint(Sketcher.Constraint("DistanceY", -1, 1, 0, 3, 268.0))
sketch6.addConstraint(Sketcher.Constraint("DistanceY", -1, 1, 1, 3, 245.5))
sketch6.addConstraint(Sketcher.Constraint("DistanceX", -1, 1, 5, 3, 325.5))
sketch6.addConstraint(Sketcher.Constraint("DistanceY", -1, 1, 8, 3, 290.5))
sketch6.addConstraint(Sketcher.Constraint("DistanceX", -1, 1, 11, 3, 280.5))
sketch6.addConstraint(Sketcher.Constraint("DistanceY", 4, 3, 6, 3, 22.5))
sketch6.addConstraint(Sketcher.Constraint("DistanceX", 9, 3, 7, 3, 22.5))
sketch6.addConstraint(Sketcher.Constraint("DistanceX", -1, 1, 3, 3, 314.25))
sketch6.addConstraint(Sketcher.Constraint("DistanceY", -1, 1, 4, 3, 256.75))
sketch6.addConstraint(Sketcher.Constraint("DistanceX", -1, 1, 2, 3, 311.485281))
sketch6.addConstraint(Sketcher.Constraint("DistanceY", -1, 1, 2, 3, 259.514719))
sketch6.addConstraint(Sketcher.Constraint("DistanceY", -1, 1, 3, 3, 248.514428))
sketch6.addConstraint(Sketcher.Constraint("DistanceX", -1, 1, 4, 3, 322.485572))
sketch6.addConstraint(Sketcher.Constraint("DistanceY", -1, 1, 7, 3, 287.485572))
sketch6.addConstraint(Sketcher.Constraint("DistanceX", -1, 1, 10, 3, 283.514428))
sketch6.addConstraint(Sketcher.Constraint("DistanceX", -1, 1, 14, 3, 314.59111))
sketch6.addConstraint(Sketcher.Constraint("DistanceY", -1, 1, 14, 3, 271.105829))
sketch6.addConstraint(Sketcher.Constraint("DistanceX", -1, 1, 15, 3, 306.105829))
sketch6.addConstraint(Sketcher.Constraint("DistanceY", -1, 1, 15, 3, 279.59111))
sketch6.addConstraint(Sketcher.Constraint("DistanceX", -1, 1, 16, 3, 294.514719))
sketch6.addConstraint(Sketcher.Constraint("DistanceY", -1, 1, 16, 3, 276.485281))
sketch6.addConstraint(Sketcher.Constraint("DistanceX", -1, 1, 17, 3, 291.40889))
sketch6.addConstraint(Sketcher.Constraint("DistanceY", -1, 1, 17, 3, 264.894171))
sketch6.addConstraint(Sketcher.Constraint("DistanceX", -1, 1, 18, 3, 299.894171))
sketch6.addConstraint(Sketcher.Constraint("DistanceY", -1, 1, 18, 3, 256.40889))
sketch6.setExpression("Constraints[30]", "Params.sketch6_diameter")
pocket5 = doc.addObject("PartDesign::Pocket", "Pocket004")
body.addObject(pocket5)
pocket5.Profile = sketch6
pocket5.Type = "ThroughAll"
pocket5.Reversed = True

doc.recompute()
